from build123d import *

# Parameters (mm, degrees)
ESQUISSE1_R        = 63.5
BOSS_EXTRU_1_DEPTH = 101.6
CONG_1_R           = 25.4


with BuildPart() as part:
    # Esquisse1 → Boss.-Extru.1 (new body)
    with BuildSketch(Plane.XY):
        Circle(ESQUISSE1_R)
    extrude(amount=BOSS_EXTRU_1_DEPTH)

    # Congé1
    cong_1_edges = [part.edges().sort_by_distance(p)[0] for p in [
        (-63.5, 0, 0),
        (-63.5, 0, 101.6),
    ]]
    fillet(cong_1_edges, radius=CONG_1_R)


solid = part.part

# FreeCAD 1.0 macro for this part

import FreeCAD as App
import Part
import Sketcher
Q = App.Units.Quantity


def edges_at(feature, points):
    """Names of the edges that pass closest to the given points."""
    edges = feature.Shape.Edges
    near = lambda p: min(range(len(edges)), key=lambda i: edges[i].distToShape(Part.Vertex(*p))[0])
    return sorted({f"Edge{near(p) + 1}" for p in points})

doc = App.newDocument("Part")
body = doc.addObject("PartDesign::Body", "Body")

# Sketch on XY plane
sketch1 = doc.addObject("Sketcher::SketchObject", "Sketch")
body.addObject(sketch1)
sketch1.AttachmentSupport = (doc.XY_Plane, [""])
sketch1.MapMode = "FlatFace"
sketch1.addGeometry(Part.Circle(App.Vector(0, 0, 0), App.Vector(0, 0, 1), 64), False)
sketch1.addConstraint([
    Sketcher.Constraint("Coincident", 0, 3, -1, 1),
    Sketcher.Constraint("Diameter", 0, Q("5 in")),
])
pad1 = doc.addObject("PartDesign::Pad", "Pad")
body.addObject(pad1)
pad1.Profile = sketch1
pad1.Length = Q("4 in")
doc.recompute()

fillet = doc.addObject("PartDesign::Fillet", "Fillet")
body.addObject(fillet)
fillet.Base = (pad1, edges_at(pad1, [(-63.5, 0, 0), (-63.5, 0, 101.6)]))
fillet.Radius = Q("1 in")

doc.recompute()
